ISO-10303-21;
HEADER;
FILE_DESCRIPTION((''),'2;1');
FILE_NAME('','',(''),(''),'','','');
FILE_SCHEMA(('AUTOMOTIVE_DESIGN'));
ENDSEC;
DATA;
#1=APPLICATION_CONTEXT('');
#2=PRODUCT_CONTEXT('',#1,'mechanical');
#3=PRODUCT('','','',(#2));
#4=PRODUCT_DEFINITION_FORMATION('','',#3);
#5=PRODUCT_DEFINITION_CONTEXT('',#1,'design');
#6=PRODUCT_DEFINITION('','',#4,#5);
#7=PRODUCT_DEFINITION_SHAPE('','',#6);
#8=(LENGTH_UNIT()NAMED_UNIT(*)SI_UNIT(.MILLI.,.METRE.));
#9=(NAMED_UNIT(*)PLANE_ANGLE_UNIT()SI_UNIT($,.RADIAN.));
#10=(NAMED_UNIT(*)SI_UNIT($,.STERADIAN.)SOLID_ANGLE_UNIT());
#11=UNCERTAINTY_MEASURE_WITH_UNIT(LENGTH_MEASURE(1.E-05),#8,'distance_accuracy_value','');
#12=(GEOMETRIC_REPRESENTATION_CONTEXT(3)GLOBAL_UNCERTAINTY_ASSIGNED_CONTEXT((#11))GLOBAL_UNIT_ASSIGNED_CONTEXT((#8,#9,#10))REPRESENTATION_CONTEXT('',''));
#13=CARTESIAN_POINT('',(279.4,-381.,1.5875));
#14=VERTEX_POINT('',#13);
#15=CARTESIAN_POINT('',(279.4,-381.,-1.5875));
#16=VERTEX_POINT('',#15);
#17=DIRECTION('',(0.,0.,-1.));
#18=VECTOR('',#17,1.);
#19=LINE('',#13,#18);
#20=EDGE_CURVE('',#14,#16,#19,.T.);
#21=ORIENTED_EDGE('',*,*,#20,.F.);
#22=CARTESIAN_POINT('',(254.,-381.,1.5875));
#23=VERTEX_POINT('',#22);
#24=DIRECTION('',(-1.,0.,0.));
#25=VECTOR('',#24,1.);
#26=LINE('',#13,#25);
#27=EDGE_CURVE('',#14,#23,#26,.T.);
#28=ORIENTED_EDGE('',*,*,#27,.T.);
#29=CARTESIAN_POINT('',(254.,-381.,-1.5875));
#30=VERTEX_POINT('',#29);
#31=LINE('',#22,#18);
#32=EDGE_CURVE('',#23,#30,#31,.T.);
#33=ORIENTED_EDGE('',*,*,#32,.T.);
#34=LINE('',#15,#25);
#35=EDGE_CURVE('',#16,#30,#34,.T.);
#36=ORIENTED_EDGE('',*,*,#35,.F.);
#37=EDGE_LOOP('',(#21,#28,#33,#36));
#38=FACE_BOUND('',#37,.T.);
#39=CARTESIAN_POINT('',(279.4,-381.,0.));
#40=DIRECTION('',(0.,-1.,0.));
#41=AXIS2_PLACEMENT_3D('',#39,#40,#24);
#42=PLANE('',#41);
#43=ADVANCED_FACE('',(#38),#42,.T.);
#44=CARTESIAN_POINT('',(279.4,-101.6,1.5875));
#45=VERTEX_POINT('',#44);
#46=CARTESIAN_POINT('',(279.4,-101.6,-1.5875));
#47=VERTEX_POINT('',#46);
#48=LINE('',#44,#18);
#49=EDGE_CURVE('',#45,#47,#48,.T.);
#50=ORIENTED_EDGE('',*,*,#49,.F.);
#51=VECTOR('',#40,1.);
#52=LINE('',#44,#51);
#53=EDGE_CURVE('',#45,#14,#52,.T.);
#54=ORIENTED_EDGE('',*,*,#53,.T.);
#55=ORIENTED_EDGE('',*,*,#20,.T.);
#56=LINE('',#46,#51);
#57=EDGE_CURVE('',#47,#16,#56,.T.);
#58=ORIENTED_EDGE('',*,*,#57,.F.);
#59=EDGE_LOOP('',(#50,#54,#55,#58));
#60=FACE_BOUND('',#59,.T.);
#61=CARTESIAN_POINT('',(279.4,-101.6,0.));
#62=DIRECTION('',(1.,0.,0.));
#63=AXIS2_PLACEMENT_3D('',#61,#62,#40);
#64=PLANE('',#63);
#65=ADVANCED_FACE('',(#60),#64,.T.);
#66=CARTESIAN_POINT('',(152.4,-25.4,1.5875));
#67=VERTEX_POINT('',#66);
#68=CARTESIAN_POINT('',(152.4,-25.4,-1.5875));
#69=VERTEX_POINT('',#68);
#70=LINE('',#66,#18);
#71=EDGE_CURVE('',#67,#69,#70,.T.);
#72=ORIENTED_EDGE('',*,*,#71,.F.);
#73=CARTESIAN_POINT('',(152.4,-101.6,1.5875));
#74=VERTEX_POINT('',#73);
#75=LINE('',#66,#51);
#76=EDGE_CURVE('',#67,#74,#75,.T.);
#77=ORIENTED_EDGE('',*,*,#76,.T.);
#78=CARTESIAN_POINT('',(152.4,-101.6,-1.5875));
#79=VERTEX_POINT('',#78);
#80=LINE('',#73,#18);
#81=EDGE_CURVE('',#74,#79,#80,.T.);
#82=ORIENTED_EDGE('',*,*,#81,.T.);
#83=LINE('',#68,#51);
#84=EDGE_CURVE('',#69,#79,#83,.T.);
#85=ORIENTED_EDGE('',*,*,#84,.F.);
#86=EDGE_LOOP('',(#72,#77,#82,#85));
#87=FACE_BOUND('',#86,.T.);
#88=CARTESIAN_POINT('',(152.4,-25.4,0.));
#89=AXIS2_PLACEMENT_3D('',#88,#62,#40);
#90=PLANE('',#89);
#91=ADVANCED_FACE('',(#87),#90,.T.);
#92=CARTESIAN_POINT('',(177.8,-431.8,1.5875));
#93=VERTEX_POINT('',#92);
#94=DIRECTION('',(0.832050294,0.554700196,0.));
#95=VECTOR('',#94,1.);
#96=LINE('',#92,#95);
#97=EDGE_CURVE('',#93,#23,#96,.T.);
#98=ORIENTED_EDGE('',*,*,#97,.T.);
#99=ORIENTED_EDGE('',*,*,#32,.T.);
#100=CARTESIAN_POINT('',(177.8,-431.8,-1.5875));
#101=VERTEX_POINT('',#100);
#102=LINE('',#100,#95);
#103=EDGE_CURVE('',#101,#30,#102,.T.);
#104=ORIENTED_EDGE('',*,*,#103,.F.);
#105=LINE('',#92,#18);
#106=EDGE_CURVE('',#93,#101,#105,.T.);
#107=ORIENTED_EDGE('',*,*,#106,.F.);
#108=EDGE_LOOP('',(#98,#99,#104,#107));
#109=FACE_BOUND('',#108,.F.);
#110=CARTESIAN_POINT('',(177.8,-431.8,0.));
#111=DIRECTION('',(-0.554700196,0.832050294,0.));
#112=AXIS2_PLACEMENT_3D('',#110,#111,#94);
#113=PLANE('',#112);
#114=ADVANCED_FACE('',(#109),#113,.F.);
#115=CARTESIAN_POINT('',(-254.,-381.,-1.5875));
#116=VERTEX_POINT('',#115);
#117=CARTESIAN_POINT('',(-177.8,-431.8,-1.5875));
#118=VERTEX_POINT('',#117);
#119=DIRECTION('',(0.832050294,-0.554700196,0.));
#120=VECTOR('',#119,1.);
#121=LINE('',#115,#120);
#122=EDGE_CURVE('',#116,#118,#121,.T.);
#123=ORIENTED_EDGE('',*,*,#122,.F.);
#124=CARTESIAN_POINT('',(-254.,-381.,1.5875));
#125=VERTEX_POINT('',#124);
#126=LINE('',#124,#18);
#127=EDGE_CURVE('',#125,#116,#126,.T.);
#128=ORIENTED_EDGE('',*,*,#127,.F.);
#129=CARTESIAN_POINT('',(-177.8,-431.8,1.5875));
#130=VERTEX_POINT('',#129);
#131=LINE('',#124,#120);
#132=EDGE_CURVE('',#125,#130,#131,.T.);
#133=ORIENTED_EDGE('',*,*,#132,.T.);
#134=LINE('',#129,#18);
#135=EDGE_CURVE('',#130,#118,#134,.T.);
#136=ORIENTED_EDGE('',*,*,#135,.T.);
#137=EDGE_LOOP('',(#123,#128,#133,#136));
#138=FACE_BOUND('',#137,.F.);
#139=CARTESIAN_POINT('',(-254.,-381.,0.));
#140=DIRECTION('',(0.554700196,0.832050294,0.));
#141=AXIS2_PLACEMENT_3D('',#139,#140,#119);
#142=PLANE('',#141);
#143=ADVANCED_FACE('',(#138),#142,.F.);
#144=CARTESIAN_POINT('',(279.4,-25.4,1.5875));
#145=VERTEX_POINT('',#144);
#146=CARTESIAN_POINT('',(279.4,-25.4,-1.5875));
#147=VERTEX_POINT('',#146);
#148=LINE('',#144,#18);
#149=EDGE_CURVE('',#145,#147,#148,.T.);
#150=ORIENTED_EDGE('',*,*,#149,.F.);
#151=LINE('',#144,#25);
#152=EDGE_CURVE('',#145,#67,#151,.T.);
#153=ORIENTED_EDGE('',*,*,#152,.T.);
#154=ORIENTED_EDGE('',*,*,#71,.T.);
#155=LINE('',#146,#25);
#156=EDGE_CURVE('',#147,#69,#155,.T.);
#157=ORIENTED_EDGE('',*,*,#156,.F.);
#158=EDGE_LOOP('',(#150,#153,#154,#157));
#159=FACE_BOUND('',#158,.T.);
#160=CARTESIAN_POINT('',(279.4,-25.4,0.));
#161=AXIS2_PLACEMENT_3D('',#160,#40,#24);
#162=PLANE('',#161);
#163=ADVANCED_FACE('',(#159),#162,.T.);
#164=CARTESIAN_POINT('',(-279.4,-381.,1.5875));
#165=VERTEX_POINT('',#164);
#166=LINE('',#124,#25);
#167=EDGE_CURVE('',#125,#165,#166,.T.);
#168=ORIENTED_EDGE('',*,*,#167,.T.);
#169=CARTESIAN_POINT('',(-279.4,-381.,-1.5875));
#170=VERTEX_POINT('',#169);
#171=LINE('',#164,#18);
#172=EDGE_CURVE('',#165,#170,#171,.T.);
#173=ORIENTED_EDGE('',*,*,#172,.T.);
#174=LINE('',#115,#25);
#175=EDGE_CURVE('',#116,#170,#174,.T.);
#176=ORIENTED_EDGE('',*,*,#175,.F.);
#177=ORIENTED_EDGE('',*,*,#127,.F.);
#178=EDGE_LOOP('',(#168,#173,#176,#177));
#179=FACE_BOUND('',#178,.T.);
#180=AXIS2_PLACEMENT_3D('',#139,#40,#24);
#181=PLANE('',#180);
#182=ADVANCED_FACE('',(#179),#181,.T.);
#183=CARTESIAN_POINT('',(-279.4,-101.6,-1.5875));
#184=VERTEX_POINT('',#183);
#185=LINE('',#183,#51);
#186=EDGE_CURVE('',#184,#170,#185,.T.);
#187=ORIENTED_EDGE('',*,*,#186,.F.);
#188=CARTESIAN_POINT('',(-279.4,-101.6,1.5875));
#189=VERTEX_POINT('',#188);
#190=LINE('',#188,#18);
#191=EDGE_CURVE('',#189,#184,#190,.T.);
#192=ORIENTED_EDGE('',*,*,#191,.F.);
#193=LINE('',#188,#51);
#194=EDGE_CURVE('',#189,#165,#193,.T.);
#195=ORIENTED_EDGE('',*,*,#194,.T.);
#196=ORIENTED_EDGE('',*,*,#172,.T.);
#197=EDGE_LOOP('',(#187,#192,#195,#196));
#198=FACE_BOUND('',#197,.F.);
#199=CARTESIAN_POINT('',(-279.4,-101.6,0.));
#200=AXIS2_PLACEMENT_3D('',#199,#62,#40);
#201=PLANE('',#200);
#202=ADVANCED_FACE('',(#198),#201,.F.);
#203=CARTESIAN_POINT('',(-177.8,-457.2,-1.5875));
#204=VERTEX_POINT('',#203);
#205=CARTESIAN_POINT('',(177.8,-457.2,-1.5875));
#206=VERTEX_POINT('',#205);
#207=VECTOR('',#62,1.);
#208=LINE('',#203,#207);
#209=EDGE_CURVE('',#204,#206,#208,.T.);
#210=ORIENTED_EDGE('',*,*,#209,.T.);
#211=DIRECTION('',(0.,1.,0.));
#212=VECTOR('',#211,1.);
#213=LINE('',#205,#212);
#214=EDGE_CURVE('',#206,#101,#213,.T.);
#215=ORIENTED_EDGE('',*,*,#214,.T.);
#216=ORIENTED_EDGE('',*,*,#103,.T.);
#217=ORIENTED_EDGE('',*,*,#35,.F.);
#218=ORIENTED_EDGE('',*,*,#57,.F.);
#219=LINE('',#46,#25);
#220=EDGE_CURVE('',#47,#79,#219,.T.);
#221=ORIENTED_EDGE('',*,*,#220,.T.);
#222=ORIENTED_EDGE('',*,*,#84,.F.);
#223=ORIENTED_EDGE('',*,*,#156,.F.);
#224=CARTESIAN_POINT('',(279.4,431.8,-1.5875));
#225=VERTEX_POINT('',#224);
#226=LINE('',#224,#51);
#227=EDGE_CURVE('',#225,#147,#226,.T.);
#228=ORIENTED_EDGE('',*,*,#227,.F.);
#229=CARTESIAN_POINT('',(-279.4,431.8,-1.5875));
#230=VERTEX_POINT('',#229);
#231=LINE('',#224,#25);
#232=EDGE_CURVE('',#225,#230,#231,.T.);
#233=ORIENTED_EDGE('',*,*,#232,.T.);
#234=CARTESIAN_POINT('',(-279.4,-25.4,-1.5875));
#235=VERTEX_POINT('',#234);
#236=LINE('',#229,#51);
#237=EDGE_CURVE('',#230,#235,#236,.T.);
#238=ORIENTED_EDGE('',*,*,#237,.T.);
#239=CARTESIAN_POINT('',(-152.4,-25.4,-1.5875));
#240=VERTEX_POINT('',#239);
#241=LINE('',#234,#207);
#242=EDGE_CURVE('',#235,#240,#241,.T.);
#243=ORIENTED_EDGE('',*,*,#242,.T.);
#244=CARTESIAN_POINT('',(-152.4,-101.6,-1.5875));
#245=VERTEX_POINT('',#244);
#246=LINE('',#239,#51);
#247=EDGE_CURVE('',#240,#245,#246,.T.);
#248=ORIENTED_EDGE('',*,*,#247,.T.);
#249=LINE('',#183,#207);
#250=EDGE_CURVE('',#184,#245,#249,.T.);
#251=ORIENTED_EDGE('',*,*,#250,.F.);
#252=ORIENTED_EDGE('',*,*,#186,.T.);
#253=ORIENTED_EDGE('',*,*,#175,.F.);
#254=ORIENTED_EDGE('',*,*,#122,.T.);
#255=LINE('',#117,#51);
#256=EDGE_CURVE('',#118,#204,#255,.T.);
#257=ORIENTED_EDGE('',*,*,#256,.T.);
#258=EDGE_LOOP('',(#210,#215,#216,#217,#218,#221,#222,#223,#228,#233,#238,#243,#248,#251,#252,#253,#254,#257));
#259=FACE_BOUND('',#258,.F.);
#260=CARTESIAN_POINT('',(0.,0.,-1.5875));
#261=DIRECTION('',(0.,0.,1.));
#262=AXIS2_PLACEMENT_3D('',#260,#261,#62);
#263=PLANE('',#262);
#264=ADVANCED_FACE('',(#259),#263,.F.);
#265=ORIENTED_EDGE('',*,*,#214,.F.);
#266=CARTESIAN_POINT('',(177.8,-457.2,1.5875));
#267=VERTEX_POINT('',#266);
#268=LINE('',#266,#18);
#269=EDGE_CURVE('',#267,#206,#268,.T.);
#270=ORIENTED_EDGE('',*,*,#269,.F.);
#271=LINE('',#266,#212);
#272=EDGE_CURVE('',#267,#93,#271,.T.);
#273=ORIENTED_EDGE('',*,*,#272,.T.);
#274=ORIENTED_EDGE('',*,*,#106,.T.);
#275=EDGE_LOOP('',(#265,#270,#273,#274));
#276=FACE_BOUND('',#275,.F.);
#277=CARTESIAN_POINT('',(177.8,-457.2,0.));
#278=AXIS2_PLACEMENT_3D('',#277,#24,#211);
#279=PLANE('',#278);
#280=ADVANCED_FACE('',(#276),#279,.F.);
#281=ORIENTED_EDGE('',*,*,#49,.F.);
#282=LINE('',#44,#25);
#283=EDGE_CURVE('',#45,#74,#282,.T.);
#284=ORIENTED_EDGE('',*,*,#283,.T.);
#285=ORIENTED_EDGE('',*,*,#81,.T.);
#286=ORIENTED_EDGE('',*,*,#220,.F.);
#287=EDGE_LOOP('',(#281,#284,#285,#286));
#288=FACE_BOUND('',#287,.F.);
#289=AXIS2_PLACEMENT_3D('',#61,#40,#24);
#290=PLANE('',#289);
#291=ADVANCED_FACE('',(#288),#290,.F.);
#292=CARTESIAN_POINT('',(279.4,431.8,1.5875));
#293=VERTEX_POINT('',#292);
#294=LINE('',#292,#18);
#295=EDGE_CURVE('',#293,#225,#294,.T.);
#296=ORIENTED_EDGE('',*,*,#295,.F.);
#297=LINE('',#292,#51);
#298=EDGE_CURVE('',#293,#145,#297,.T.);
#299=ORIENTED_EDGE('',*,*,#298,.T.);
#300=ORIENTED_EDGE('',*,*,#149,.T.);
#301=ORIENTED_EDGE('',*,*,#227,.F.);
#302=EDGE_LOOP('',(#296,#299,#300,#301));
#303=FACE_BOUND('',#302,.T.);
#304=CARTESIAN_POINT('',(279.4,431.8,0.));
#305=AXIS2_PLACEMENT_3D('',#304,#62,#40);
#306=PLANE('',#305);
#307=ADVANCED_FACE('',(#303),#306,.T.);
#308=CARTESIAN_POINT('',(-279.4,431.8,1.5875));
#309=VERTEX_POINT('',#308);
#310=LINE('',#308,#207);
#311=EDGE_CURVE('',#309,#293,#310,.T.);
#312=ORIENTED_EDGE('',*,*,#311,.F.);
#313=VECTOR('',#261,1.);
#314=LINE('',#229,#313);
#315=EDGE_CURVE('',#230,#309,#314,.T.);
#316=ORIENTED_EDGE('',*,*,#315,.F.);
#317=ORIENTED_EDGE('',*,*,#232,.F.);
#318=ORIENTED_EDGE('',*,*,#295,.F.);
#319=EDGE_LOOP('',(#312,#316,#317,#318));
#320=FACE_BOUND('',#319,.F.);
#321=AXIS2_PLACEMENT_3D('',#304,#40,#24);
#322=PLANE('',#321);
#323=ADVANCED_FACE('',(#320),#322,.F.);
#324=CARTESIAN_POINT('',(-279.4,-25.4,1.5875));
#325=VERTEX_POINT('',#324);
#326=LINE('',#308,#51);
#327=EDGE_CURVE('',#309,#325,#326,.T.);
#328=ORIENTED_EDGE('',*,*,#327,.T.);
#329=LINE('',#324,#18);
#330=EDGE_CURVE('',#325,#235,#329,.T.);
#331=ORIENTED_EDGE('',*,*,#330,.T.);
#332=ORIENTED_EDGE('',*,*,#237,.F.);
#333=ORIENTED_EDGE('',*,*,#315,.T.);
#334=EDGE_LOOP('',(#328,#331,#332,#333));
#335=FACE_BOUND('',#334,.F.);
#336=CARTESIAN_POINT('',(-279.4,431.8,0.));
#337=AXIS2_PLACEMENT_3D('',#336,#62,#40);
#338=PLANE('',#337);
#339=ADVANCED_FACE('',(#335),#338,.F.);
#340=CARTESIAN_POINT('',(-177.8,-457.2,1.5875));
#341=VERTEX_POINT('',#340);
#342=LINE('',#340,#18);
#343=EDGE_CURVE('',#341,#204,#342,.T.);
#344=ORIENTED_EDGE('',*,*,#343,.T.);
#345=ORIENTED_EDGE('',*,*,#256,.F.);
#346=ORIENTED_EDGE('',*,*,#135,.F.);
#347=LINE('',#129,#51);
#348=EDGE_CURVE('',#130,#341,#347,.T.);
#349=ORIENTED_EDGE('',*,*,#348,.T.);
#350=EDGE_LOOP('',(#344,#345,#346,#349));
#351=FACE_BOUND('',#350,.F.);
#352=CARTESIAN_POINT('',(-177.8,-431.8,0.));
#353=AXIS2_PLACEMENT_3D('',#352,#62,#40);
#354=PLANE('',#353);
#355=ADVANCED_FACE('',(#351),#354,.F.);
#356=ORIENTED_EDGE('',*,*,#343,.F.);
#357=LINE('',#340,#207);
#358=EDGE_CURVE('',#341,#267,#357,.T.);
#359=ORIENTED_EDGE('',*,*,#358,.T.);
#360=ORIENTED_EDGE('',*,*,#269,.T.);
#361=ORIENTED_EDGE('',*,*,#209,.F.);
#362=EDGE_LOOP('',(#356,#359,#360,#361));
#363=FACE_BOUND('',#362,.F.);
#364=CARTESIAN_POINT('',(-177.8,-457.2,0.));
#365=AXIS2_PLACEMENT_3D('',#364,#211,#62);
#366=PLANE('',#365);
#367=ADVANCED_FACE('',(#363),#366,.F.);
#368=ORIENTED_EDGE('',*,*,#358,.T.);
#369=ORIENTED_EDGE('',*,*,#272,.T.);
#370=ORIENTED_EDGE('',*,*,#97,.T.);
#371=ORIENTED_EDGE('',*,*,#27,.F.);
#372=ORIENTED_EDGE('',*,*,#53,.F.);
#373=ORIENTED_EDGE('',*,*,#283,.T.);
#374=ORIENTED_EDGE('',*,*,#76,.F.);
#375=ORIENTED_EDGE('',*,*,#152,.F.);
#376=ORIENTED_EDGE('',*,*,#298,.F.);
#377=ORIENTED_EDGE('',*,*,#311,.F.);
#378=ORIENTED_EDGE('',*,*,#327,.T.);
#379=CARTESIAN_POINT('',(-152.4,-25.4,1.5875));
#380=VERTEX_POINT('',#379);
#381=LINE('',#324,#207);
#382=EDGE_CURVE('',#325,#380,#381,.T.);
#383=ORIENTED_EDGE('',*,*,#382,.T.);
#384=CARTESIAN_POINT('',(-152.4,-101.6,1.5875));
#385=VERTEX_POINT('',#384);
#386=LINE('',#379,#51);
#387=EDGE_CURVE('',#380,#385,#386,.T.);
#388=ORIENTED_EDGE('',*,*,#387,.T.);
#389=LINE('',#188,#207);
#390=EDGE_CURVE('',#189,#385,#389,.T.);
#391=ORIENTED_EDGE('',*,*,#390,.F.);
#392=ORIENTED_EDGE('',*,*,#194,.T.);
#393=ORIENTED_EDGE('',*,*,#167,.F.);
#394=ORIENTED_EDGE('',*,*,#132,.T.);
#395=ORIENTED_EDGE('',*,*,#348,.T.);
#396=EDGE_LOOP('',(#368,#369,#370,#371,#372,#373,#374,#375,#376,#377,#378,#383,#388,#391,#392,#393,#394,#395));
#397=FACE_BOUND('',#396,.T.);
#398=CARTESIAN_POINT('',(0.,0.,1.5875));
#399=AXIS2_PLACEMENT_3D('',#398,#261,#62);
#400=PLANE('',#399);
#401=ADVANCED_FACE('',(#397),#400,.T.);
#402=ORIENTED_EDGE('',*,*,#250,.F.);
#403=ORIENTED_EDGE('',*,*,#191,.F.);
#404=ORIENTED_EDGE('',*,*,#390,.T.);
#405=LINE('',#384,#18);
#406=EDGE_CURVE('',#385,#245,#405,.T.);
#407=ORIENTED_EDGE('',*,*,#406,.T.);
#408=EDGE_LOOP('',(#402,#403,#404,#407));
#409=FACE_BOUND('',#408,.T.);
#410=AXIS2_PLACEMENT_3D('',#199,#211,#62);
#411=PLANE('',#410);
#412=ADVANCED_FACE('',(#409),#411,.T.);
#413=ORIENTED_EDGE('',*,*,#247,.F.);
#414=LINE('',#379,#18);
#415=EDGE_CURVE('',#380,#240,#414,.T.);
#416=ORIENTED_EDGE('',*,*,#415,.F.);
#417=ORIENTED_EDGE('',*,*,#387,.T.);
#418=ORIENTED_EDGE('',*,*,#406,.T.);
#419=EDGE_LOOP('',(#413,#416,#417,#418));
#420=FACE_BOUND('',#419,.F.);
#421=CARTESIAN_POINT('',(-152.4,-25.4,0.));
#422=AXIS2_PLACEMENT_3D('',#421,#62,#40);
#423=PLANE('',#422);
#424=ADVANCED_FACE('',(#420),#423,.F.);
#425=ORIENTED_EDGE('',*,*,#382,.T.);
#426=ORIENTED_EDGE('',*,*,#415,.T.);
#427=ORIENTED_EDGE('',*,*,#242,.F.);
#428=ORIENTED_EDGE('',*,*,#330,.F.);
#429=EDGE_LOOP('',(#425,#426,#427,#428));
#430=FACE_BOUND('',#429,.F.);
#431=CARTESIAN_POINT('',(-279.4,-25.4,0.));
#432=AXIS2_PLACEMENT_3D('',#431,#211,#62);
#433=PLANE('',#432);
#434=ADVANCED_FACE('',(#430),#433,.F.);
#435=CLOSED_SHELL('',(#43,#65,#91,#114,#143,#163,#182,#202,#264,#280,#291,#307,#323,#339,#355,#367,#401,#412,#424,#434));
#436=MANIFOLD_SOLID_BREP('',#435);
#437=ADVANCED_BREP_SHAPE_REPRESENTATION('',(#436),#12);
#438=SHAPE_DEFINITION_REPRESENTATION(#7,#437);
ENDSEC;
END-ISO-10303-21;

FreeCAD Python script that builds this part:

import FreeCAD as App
import Part
import Sketcher
Q = App.Units.Quantity

doc = App.newDocument("Part")
body = doc.addObject("PartDesign::Body", "Body")

# Sketch on XY plane
sketch1 = body.newObject("Sketcher::SketchObject", "Sketch")
sketch1.AttachmentSupport = (doc.getObject("XY_Plane"), [""])
sketch1.MapMode = "FlatFace"
sketch1.addGeometry([
    Part.LineSegment(App.Vector(279.4, 431.8, 0), App.Vector(-279.4, 431.8, 0)),  # 0
    Part.LineSegment(App.Vector(-279.4, 431.8, 0), App.Vector(-279.4, -25.4, 0)),  # 1
    Part.LineSegment(App.Vector(-279.4, -25.4, 0), App.Vector(-152.4, -25.4, 0)),  # 2
    Part.LineSegment(App.Vector(-152.4, -25.4, 0), App.Vector(-152.4, -101.6, 0)),  # 3
    Part.LineSegment(App.Vector(-152.4, -101.6, 0), App.Vector(-279.4, -101.6, 0)),  # 4
    Part.LineSegment(App.Vector(-279.4, -101.6, 0), App.Vector(-279.4, -381, 0)),  # 5
    Part.LineSegment(App.Vector(-279.4, -381, 0), App.Vector(-254, -381, 0)),  # 6
    Part.LineSegment(App.Vector(-254, -381, 0), App.Vector(-177.8, -431.8, 0)),  # 7
    Part.LineSegment(App.Vector(-177.8, -431.8, 0), App.Vector(-177.8, -457.2, 0)),  # 8
    Part.LineSegment(App.Vector(-177.8, -457.2, 0), App.Vector(177.8, -457.2, 0)),  # 9
    Part.LineSegment(App.Vector(177.8, -457.2, 0), App.Vector(177.8, -431.8, 0)),  # 10
    Part.LineSegment(App.Vector(177.8, -431.8, 0), App.Vector(254, -381, 0)),  # 11
    Part.LineSegment(App.Vector(254, -381, 0), App.Vector(279.4, -381, 0)),  # 12
    Part.LineSegment(App.Vector(279.4, -381, 0), App.Vector(279.4, -101.6, 0)),  # 13
    Part.LineSegment(App.Vector(279.4, -101.6, 0), App.Vector(152.4, -101.6, 0)),  # 14
    Part.LineSegment(App.Vector(152.4, -101.6, 0), App.Vector(152.4, -25.4, 0)),  # 15
    Part.LineSegment(App.Vector(152.4, -25.4, 0), App.Vector(279.4, -25.4, 0)),  # 16
    Part.LineSegment(App.Vector(279.4, -25.4, 0), App.Vector(279.4, 431.8, 0)),  # 17
], False)
sketch1.addConstraint([
    Sketcher.Constraint("Coincident", 0, 2, 1, 1),
    Sketcher.Constraint("Coincident", 1, 2, 2, 1),
    Sketcher.Constraint("Coincident", 2, 2, 3, 1),
    Sketcher.Constraint("Coincident", 3, 2, 4, 1),
    Sketcher.Constraint("Coincident", 4, 2, 5, 1),
    Sketcher.Constraint("Coincident", 5, 2, 6, 1),
    Sketcher.Constraint("Coincident", 6, 2, 7, 1),
    Sketcher.Constraint("Coincident", 7, 2, 8, 1),
    Sketcher.Constraint("Coincident", 8, 2, 9, 1),
    Sketcher.Constraint("Coincident", 9, 2, 10, 1),
    Sketcher.Constraint("Coincident", 10, 2, 11, 1),
    Sketcher.Constraint("Coincident", 11, 2, 12, 1),
    Sketcher.Constraint("Coincident", 12, 2, 13, 1),
    Sketcher.Constraint("Coincident", 13, 2, 14, 1),
    Sketcher.Constraint("Coincident", 14, 2, 15, 1),
    Sketcher.Constraint("Coincident", 15, 2, 16, 1),
    Sketcher.Constraint("Coincident", 16, 2, 17, 1),
    Sketcher.Constraint("Coincident", 17, 2, 0, 1),
    Sketcher.Constraint("Horizontal", 0),
    Sketcher.Constraint("Vertical", 1),
    Sketcher.Constraint("Horizontal", 2),
    Sketcher.Constraint("Vertical", 3),
    Sketcher.Constraint("Horizontal", 4),
    Sketcher.Constraint("Vertical", 5),
    Sketcher.Constraint("Horizontal", 6),
    Sketcher.Constraint("Vertical", 8),
    Sketcher.Constraint("Horizontal", 9),
    Sketcher.Constraint("Vertical", 10),
    Sketcher.Constraint("Horizontal", 12),
    Sketcher.Constraint("Vertical", 13),
    Sketcher.Constraint("Horizontal", 14),
    Sketcher.Constraint("Vertical", 15),
    Sketcher.Constraint("Horizontal", 16),
    Sketcher.Constraint("Vertical", 17),
    Sketcher.Constraint("Symmetric", 7, 2, 10, 2, -2),
    Sketcher.Constraint("Symmetric", 6, 2, 11, 2, -2),
    Sketcher.Constraint("Symmetric", 4, 2, 13, 2, -2),
    Sketcher.Constraint("Symmetric", 2, 2, 15, 2, -2),
    Sketcher.Constraint("Vertical", 1, 2, 4, 2),
    Sketcher.Constraint("Vertical", 13, 2, 16, 2),
    Sketcher.Constraint("Equal", 12, 8),
    Sketcher.Constraint("DistanceX", 2, 1, 2, 2, Q("5 in")),
    Sketcher.Constraint("DistanceX", 6, 1, 6, 2, Q("1 in")),
    Sketcher.Constraint("DistanceX", 9, 1, 9, 2, Q("14 in")),
    Sketcher.Constraint("DistanceY", 3, 2, 3, 1, Q("3 in")),
    Sketcher.Constraint("DistanceY", 1, 2, -1, 1, Q("1 in")),
    Sketcher.Constraint("DistanceY", 5, 2, 1, 2, Q("14 in")),
    Sketcher.Constraint("DistanceY", 5, 2, 0, 2, Q("32 in")),
    Sketcher.Constraint("DistanceX", 6, 2, 7, 2, Q("3 in")),
    Sketcher.Constraint("DistanceY", 7, 2, 6, 2, Q("2 in")),
])
pad1 = body.newObject("PartDesign::Pad", "Pad")
pad1.Profile = sketch1
pad1.Length = Q("0.125 in")
pad1.Midplane = True

doc.recompute()
